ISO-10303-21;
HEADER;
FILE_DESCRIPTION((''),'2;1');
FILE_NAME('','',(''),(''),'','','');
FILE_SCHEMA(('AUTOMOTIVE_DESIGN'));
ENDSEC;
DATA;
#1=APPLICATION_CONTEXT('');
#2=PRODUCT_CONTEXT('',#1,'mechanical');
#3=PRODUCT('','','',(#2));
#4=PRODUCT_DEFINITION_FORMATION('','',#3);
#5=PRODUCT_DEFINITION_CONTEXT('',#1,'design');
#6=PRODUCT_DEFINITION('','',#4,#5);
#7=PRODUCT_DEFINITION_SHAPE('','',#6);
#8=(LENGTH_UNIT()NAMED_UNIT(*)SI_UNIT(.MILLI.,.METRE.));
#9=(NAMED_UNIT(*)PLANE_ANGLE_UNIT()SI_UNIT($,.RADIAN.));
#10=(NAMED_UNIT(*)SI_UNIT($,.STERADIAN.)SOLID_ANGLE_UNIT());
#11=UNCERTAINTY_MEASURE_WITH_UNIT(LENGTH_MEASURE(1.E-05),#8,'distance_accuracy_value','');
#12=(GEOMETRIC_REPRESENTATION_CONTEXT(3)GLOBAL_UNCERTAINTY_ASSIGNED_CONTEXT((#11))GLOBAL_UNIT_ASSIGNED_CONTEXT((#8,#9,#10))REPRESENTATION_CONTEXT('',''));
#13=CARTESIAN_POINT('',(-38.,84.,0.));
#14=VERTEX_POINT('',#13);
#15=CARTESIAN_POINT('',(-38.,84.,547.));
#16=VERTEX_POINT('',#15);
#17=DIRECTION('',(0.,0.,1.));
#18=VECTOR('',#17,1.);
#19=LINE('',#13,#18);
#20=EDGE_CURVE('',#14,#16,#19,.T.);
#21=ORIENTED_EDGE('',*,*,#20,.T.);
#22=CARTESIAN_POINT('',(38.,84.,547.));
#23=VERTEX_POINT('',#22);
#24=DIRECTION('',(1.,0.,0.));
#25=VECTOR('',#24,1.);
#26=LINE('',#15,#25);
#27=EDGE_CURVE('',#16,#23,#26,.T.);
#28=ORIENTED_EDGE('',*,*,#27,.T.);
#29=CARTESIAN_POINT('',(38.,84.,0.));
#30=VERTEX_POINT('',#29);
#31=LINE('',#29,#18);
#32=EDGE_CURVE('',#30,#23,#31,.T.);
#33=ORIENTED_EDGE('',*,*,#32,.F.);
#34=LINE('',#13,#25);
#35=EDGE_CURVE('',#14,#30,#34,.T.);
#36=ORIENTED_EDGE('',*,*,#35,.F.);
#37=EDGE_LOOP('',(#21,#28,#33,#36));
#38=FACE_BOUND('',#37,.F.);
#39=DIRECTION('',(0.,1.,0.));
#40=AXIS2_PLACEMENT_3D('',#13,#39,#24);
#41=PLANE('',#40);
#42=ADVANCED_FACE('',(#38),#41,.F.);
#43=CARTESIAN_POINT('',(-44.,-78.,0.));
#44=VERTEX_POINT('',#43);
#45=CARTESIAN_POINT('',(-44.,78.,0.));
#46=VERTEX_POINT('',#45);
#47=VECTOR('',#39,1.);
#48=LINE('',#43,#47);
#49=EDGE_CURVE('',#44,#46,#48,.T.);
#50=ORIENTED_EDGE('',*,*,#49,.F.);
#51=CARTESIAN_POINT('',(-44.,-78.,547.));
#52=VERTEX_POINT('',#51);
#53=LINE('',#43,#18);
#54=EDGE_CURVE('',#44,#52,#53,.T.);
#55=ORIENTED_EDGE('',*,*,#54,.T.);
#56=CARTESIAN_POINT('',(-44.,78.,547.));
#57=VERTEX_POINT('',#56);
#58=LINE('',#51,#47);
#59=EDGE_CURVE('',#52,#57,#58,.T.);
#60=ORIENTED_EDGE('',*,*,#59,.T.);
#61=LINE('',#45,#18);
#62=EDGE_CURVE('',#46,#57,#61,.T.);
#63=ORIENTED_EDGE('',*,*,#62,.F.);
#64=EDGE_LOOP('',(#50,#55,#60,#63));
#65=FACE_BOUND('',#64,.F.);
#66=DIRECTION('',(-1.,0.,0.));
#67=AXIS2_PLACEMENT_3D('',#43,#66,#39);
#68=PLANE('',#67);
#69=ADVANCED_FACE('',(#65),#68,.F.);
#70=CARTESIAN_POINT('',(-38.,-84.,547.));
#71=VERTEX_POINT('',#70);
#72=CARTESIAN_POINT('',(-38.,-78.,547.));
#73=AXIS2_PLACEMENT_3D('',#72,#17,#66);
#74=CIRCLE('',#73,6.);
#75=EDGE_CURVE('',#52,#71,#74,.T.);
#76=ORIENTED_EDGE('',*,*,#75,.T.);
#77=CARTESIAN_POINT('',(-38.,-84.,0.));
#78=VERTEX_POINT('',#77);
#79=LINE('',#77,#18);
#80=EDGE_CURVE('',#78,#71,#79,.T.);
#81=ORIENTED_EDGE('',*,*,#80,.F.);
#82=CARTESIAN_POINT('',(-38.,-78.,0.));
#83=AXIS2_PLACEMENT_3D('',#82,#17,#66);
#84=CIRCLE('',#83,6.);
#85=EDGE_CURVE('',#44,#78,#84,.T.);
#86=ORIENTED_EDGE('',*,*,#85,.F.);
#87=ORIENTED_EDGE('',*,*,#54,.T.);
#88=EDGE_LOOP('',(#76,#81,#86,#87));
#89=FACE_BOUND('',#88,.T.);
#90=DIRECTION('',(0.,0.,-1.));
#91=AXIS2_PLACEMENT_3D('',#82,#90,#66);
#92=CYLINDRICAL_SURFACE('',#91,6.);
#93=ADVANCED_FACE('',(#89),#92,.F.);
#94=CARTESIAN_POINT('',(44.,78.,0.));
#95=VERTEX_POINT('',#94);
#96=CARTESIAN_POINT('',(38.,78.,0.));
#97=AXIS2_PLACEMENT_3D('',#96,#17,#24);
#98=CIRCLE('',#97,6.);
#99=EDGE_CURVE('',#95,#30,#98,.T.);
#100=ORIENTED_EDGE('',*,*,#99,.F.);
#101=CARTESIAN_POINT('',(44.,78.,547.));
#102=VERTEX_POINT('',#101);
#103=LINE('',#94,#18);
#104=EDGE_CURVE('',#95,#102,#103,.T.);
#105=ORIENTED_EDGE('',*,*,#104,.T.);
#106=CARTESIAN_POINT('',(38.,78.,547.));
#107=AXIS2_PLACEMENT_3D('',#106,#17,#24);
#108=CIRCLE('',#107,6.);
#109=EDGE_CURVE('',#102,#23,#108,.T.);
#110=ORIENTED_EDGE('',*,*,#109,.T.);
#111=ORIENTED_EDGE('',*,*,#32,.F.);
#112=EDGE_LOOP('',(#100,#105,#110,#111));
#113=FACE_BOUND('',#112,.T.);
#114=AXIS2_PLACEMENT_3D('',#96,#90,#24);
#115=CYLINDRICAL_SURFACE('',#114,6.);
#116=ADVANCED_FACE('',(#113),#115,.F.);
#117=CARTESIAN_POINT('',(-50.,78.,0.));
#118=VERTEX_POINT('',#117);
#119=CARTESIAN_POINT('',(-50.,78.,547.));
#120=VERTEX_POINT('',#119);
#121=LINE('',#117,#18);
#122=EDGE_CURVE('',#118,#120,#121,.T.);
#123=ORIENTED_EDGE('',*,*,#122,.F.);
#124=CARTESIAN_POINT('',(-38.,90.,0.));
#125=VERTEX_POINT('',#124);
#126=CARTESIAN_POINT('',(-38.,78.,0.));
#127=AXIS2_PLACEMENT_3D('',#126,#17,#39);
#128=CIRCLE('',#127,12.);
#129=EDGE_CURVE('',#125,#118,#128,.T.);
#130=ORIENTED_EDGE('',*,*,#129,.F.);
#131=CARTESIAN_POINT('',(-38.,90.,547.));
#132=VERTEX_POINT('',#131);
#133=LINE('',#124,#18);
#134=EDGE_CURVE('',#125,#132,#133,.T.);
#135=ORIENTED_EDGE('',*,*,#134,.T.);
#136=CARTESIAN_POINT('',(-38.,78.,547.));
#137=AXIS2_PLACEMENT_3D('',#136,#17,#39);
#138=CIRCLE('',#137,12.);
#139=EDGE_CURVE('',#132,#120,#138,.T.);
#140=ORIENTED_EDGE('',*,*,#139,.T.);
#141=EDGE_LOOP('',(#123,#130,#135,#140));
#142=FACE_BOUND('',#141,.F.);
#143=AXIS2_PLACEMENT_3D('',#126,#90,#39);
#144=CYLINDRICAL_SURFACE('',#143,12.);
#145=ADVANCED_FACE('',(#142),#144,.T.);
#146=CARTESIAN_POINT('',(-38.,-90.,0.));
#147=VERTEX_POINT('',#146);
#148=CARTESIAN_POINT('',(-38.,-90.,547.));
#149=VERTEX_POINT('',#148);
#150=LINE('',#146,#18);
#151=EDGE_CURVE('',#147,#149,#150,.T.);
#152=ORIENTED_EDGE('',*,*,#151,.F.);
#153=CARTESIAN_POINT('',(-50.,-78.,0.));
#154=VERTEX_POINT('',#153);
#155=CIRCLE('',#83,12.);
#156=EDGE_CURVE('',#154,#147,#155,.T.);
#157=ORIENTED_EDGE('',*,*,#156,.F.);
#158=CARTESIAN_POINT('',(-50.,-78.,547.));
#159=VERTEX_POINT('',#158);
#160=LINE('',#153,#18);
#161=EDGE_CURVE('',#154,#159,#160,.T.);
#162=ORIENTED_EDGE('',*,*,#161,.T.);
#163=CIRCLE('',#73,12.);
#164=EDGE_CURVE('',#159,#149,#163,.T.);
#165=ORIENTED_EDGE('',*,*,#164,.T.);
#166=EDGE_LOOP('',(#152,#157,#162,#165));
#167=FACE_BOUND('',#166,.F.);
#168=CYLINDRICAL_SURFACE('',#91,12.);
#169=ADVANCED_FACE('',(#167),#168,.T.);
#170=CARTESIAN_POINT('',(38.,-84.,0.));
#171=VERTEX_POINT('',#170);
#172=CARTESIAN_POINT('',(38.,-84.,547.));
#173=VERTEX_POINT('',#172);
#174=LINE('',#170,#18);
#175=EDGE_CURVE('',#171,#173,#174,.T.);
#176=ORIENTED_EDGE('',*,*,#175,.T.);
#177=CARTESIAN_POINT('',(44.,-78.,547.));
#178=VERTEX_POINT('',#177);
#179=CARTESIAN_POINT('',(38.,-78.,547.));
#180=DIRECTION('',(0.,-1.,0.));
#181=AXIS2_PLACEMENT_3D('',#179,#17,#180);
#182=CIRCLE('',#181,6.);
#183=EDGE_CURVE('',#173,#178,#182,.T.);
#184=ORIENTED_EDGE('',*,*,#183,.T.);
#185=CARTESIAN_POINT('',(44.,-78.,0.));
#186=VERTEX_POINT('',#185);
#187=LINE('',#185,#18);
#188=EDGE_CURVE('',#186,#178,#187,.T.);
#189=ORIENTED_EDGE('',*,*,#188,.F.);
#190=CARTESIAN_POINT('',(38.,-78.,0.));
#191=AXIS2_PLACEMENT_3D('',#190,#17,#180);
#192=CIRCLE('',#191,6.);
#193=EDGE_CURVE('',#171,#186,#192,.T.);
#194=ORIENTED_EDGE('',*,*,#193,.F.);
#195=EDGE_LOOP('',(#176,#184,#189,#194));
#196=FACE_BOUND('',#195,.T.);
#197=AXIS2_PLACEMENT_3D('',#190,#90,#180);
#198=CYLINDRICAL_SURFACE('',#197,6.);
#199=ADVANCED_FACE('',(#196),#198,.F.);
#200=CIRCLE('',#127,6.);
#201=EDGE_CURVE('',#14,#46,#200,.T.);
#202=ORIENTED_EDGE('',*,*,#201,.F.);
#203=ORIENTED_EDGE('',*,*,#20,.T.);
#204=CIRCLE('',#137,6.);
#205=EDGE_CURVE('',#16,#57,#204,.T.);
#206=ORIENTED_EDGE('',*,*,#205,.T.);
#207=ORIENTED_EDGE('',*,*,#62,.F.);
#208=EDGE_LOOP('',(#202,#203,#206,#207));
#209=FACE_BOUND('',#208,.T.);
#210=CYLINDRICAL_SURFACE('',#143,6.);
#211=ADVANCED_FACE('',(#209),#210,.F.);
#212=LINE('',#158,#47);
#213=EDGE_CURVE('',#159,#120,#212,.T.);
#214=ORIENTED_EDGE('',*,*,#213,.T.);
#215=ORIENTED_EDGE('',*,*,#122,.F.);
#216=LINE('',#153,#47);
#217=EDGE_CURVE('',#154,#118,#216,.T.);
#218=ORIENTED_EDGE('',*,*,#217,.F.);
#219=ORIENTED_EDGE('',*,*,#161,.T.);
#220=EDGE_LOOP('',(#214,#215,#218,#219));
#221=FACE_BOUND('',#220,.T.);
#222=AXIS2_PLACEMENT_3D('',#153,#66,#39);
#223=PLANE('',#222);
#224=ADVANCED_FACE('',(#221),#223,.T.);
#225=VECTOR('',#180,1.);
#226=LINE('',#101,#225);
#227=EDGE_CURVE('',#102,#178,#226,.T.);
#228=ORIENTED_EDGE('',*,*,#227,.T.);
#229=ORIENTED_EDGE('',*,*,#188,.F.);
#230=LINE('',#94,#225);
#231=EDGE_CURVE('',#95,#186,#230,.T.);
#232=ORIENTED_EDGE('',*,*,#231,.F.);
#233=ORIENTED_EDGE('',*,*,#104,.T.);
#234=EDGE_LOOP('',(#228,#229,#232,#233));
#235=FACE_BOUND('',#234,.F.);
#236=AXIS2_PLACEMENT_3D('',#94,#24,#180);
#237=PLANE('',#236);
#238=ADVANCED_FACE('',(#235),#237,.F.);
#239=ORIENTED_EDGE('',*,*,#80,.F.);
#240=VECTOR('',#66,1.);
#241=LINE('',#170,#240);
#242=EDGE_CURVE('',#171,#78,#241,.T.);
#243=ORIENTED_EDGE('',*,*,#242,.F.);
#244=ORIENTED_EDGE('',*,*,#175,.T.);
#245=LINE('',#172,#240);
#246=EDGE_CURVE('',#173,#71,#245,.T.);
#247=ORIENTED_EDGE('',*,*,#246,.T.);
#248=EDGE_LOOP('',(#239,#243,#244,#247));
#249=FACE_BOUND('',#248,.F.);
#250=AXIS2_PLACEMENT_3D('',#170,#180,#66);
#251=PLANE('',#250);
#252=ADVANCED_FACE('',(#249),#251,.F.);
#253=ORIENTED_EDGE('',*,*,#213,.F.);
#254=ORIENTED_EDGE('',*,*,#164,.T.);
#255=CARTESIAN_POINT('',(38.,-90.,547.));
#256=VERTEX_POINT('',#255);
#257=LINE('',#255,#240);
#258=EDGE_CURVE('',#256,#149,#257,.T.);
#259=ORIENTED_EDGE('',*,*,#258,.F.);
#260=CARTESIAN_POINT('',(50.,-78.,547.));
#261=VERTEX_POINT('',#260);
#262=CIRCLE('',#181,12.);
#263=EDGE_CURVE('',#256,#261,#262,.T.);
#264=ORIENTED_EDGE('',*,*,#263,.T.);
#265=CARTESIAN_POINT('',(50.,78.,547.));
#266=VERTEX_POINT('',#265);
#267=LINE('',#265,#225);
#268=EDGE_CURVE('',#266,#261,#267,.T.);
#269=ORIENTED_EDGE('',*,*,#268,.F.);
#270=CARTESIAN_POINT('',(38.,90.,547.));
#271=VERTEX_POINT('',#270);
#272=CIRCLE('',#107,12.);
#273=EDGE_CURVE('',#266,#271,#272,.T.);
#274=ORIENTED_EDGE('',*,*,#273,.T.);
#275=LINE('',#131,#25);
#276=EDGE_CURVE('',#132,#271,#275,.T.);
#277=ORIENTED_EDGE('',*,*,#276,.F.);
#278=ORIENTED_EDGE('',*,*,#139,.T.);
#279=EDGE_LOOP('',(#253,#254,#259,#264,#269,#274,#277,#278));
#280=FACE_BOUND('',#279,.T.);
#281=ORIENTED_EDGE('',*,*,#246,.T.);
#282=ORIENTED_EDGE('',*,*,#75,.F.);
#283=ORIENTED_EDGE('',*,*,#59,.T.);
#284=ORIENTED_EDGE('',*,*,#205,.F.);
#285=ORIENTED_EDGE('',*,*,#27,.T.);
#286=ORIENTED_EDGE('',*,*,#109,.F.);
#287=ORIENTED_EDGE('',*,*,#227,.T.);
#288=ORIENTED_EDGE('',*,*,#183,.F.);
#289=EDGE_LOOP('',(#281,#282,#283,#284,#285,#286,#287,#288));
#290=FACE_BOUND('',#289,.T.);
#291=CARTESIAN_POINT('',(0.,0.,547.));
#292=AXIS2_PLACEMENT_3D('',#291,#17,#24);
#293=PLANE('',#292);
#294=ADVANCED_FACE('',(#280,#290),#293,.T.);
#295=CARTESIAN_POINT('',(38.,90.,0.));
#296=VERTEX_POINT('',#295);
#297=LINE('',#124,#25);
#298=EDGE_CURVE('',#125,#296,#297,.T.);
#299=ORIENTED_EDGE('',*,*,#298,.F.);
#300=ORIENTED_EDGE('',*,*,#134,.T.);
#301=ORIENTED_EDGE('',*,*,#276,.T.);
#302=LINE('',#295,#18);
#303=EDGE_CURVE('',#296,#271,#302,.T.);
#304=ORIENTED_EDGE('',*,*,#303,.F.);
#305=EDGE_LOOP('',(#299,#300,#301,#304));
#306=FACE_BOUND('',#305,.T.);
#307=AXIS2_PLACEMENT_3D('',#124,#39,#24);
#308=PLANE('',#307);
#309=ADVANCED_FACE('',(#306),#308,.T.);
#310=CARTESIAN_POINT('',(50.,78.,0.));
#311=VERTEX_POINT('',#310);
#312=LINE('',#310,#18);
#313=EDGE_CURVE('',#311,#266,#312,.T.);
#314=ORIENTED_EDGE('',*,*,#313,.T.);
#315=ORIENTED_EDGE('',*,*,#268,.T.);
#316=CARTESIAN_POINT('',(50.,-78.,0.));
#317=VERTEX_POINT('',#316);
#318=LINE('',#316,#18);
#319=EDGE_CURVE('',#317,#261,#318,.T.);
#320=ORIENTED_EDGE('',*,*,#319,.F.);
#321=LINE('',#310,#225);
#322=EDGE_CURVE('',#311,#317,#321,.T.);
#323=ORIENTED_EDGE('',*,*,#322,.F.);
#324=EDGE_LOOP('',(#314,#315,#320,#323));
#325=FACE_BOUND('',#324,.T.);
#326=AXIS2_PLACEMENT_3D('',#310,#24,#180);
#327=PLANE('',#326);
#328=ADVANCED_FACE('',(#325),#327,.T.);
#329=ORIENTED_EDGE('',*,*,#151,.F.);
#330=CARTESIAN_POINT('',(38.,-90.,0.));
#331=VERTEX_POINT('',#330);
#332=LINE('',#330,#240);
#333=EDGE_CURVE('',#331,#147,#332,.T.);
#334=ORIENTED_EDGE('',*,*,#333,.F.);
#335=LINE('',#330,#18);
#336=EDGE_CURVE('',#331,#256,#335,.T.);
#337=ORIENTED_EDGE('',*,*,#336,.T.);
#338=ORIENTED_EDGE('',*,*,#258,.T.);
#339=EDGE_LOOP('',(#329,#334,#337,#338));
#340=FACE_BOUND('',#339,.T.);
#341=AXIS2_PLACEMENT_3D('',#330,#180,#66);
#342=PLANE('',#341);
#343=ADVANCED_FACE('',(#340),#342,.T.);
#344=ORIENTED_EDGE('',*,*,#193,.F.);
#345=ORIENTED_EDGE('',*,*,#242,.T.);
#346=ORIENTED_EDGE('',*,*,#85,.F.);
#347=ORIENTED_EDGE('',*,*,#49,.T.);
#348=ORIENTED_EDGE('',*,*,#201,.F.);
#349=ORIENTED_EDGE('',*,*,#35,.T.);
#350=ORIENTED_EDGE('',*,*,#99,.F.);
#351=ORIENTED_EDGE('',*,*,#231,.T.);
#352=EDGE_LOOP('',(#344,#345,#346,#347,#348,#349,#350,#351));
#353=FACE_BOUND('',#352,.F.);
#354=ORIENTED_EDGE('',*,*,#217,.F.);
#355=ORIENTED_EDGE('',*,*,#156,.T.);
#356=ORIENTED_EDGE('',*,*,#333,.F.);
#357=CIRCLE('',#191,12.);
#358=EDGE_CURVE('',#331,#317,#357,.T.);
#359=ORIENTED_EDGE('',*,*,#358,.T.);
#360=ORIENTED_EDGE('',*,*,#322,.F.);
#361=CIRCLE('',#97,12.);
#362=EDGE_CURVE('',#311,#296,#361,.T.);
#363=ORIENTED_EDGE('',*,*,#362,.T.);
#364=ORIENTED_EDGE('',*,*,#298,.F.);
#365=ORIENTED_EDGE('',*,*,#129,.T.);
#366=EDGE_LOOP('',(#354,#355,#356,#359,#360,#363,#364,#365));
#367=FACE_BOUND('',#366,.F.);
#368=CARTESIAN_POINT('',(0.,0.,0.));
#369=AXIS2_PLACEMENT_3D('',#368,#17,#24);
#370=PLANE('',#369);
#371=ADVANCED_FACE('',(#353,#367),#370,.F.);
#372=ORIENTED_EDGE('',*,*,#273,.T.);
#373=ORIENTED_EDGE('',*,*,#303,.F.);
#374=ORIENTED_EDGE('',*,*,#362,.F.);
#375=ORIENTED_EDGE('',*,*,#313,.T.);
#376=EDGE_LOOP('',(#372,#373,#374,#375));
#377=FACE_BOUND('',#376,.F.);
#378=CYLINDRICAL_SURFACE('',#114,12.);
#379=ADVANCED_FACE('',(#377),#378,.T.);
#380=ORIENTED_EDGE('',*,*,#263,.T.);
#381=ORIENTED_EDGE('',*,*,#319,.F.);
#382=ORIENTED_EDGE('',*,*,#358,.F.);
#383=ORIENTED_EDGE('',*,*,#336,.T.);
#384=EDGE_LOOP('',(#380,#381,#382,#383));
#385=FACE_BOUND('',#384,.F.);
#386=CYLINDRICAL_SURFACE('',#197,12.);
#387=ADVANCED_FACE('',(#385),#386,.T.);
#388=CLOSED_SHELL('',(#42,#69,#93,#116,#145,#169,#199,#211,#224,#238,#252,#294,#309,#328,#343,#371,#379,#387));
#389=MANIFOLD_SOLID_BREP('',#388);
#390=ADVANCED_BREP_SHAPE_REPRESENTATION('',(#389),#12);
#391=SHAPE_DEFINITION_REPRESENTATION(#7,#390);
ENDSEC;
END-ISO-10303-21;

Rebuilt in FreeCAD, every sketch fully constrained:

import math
import FreeCAD as App
import Part
import Sketcher
from FreeCAD import Vector

doc = App.newDocument("Part")
body = doc.addObject("PartDesign::Body", "Body")

sketch1 = body.newObject("Sketcher::SketchObject", "Sketch")
sketch1.AttachmentSupport = (doc.getObject("XY_Plane"), [""])
sketch1.MapMode = "FlatFace"
sketch1.addGeometry([
    Part.LineSegment(Vector(-50, 78, 0), Vector(-50, -78, 0)),
    Part.ArcOfCircle(Part.Circle(Vector(-38, -78, 0), Vector(0, 0, 1), 12), math.radians(180), math.radians(270)),
    Part.LineSegment(Vector(-38, -90, 0), Vector(38, -90, 0)),
    Part.ArcOfCircle(Part.Circle(Vector(38, -78, 0), Vector(0, 0, 1), 12), math.radians(-90), math.radians(0)),
    Part.LineSegment(Vector(50, -78, 0), Vector(50, 78, 0)),
    Part.ArcOfCircle(Part.Circle(Vector(38, 78, 0), Vector(0, 0, 1), 12), math.radians(0), math.radians(90)),
    Part.LineSegment(Vector(38, 90, 0), Vector(-38, 90, 0)),
    Part.ArcOfCircle(Part.Circle(Vector(-38, 78, 0), Vector(0, 0, 1), 12), math.radians(90), math.radians(180)),
    Part.ArcOfCircle(Part.Circle(Vector(-38, 78, 0), Vector(0, 0, 1), 6), math.radians(90), math.radians(180)),
    Part.LineSegment(Vector(-38, 84, 0), Vector(38, 84, 0)),
    Part.ArcOfCircle(Part.Circle(Vector(38, 78, 0), Vector(0, 0, 1), 6), math.radians(0), math.radians(90)),
    Part.LineSegment(Vector(44, 78, 0), Vector(44, -78, 0)),
    Part.ArcOfCircle(Part.Circle(Vector(38, -78, 0), Vector(0, 0, 1), 6), math.radians(-90), math.radians(0)),
    Part.LineSegment(Vector(38, -84, 0), Vector(-38, -84, 0)),
    Part.ArcOfCircle(Part.Circle(Vector(-38, -78, 0), Vector(0, 0, 1), 6), math.radians(180), math.radians(270)),
    Part.LineSegment(Vector(-44, -78, 0), Vector(-44, 78, 0)),
], False)
sketch1.addConstraint([
    Sketcher.Constraint("Tangent", 0, 2, 1, 1),
    Sketcher.Constraint("Tangent", 1, 2, 2, 1),
    Sketcher.Constraint("Tangent", 2, 2, 3, 1),
    Sketcher.Constraint("Tangent", 3, 2, 4, 1),
    Sketcher.Constraint("Tangent", 4, 2, 5, 1),
    Sketcher.Constraint("Tangent", 5, 2, 6, 1),
    Sketcher.Constraint("Tangent", 6, 2, 7, 1),
    Sketcher.Constraint("Tangent", 7, 2, 0, 1),
    Sketcher.Constraint("Tangent", 8, 1, 9, 1),
    Sketcher.Constraint("Tangent", 9, 2, 10, 2),
    Sketcher.Constraint("Tangent", 10, 1, 11, 1),
    Sketcher.Constraint("Tangent", 11, 2, 12, 2),
    Sketcher.Constraint("Tangent", 12, 1, 13, 1),
    Sketcher.Constraint("Tangent", 13, 2, 14, 2),
    Sketcher.Constraint("Tangent", 14, 1, 15, 1),
    Sketcher.Constraint("Tangent", 15, 2, 8, 2),
    Sketcher.Constraint("Vertical", 0),
    Sketcher.Constraint("Horizontal", 2),
    Sketcher.Constraint("Vertical", 4),
    Sketcher.Constraint("Horizontal", 6),
    Sketcher.Constraint("Horizontal", 9),
    Sketcher.Constraint("Vertical", 11),
    Sketcher.Constraint("Horizontal", 13),
    Sketcher.Constraint("Vertical", 15),
    Sketcher.Constraint("Coincident", 8, 3, 7, 3),
    Sketcher.Constraint("Coincident", 10, 3, 5, 3),
    Sketcher.Constraint("Coincident", 12, 3, 3, 3),
    Sketcher.Constraint("Equal", 1, 3),
    Sketcher.Constraint("Equal", 3, 5),
    Sketcher.Constraint("Equal", 5, 7),
    Sketcher.Constraint("Equal", 12, 14),
    Sketcher.Constraint("Symmetric", 1, 3, 5, 3, -1, 1),
    Sketcher.Constraint("Radius", 1, 12.0),
    Sketcher.Constraint("Radius", 8, 6.0),
    Sketcher.Constraint("DistanceX", 0, 2, -1, 1, 50.0),
    Sketcher.Constraint("DistanceY", 1, 2, -1, 1, 90.0),
])
pad1 = body.newObject("PartDesign::Pad", "Pad")
pad1.Profile = sketch1
pad1.Length = 547

doc.recompute()
